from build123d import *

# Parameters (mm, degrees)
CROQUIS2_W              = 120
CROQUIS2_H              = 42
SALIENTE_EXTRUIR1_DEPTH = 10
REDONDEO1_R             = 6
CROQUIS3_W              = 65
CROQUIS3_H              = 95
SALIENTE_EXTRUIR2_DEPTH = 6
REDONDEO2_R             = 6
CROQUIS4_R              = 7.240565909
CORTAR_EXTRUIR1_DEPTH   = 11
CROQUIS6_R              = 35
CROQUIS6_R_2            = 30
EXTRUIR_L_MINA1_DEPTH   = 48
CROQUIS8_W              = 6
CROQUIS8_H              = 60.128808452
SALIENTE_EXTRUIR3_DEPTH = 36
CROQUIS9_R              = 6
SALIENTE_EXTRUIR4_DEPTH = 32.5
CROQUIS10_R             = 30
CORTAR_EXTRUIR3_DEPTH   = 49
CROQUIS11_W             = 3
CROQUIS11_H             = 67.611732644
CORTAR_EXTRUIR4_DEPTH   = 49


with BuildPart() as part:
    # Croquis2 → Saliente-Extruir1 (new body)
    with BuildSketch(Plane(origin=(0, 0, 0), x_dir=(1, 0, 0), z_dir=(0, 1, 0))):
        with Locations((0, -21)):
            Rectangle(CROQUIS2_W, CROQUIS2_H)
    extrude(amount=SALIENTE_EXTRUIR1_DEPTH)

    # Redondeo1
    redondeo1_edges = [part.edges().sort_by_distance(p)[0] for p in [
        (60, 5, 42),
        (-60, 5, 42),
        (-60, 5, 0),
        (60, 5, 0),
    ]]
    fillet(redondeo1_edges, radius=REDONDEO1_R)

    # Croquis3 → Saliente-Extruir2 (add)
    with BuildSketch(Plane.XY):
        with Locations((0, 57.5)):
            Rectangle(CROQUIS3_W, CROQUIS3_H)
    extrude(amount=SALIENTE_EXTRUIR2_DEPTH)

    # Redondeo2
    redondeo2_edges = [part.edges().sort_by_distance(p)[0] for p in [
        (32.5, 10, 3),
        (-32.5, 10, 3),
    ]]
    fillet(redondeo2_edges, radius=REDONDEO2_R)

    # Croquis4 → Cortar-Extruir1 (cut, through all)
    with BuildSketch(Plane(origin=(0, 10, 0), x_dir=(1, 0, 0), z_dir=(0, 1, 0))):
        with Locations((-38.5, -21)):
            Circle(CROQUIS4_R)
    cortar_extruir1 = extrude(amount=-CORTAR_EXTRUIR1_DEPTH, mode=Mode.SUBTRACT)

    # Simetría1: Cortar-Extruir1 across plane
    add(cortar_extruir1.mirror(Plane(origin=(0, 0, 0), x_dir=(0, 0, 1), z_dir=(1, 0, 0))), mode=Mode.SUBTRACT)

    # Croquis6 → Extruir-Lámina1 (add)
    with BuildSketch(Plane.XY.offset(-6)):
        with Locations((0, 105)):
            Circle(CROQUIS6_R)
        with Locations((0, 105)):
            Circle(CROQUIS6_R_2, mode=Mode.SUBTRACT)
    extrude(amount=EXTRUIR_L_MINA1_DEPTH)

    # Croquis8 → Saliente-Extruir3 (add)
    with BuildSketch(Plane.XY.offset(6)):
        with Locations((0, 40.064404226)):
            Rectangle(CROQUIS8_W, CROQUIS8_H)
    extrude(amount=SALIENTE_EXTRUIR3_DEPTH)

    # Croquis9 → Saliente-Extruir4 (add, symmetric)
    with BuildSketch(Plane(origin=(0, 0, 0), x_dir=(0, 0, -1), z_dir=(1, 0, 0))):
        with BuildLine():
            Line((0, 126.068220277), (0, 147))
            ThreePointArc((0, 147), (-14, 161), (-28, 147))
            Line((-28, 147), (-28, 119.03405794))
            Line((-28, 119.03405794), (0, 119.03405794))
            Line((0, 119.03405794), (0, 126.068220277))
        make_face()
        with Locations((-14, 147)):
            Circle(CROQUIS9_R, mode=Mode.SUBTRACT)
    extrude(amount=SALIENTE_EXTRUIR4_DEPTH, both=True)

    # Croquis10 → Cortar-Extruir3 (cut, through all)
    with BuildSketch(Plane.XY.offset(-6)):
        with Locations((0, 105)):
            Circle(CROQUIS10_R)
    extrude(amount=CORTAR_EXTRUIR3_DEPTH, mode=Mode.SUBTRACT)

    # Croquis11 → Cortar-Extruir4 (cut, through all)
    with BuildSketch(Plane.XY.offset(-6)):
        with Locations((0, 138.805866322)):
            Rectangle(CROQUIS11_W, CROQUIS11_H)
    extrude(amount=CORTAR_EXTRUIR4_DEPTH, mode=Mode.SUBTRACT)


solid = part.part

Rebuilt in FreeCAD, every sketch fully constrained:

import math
import FreeCAD as App
import Part
import Sketcher
from FreeCAD import Vector


def edges_at(feature, points):
    """Names of the edges that pass closest to the given points."""
    edges = feature.Shape.Edges
    near = lambda p: min(range(len(edges)), key=lambda i: edges[i].distToShape(Part.Vertex(*p))[0])
    return sorted({f"Edge{near(p) + 1}" for p in points})


def add_polygon(sketch, points):
    """Adds a closed chain of lines whose ends are joined by coincident constraints."""
    first, n = sketch.GeometryCount, len(points)
    for a, b in zip(points, points[1:] + points[:1]):
        sketch.addGeometry(Part.LineSegment(App.Vector(*a, 0), App.Vector(*b, 0)), False)
    for i in range(n):
        sketch.addConstraint(Sketcher.Constraint("Coincident", first + i, 2, first + (i + 1) % n, 1))

doc = App.newDocument("Part")
params = doc.addObject("Spreadsheet::Sheet", "Params")
for row, (alias, value) in enumerate([
    ("sketch1_width", "120 mm"),
    ("sketch1_height", "42 mm"),
    ("pad1_length", "10 mm"),
    ("fillet_radius", "6 mm"),
    ("sketch2_width", "65 mm"),
    ("sketch2_height", "95 mm"),
    ("pad2_length", "6 mm"),
    ("fillet2_radius", "6 mm"),
    ("sketch4_diameter", "70 mm"),
    ("sketch4_diameter2", "60 mm"),
    ("pad3_length", "48 mm"),
    ("sketch5_width", "6 mm"),
    ("pad4_length", "36 mm"),
    ("sketch6_diameter", "12 mm"),
    ("sketch6_radius", "14 mm"),
    ("pad5_length", "65 mm"),
    ("sketch7_diameter", "60 mm"),
    ("sketch8_width", "3 mm"),
], start=1):
    params.set(f"A{row}", alias)
    params.set(f"B{row}", "=" + value)
    params.setAlias(f"B{row}", alias)

body = doc.addObject("PartDesign::Body", "Body")

# Sketch on XZ plane
sketch1 = body.newObject("Sketcher::SketchObject", "Sketch")
sketch1.AttachmentSupport = (doc.getObject("XZ_Plane"), [""])
sketch1.MapMode = "FlatFace"
add_polygon(sketch1, [(-60, 0), (-60, 42), (60, 42), (60, 0)])  # lines 0-3
sketch1.addConstraint([
    Sketcher.Constraint("Vertical", 0),
    Sketcher.Constraint("Horizontal", 1),
    Sketcher.Constraint("Vertical", 2),
    Sketcher.Constraint("Horizontal", 3),
    Sketcher.Constraint("Symmetric", 2, 2, 3, 2, -1, 1),
    Sketcher.Constraint("DistanceX", 1, 1, 1, 2, 120.0),
    Sketcher.Constraint("DistanceY", 0, 1, 0, 2, 42.0),
])
sketch1.setExpression("Constraints[9]", "Params.sketch1_width")
sketch1.setExpression("Constraints[10]", "Params.sketch1_height")
pad1 = body.newObject("PartDesign::Pad", "Pad")
pad1.Profile = sketch1
pad1.setExpression("Length", "Params.pad1_length")
pad1.Reversed = True
doc.recompute()

fillet = body.newObject("PartDesign::Fillet", "Fillet")
fillet.Base = (pad1, edges_at(pad1, [
    (60, 5, 42),
    (-60, 5, 42),
    (-60, 5, 0),
    (60, 5, 0),
]))
fillet.setExpression("Radius", "Params.fillet_radius")

# Sketch on XY plane
sketch2 = body.newObject("Sketcher::SketchObject", "Sketch001")
sketch2.AttachmentSupport = (doc.getObject("XY_Plane"), [""])
sketch2.MapMode = "FlatFace"
add_polygon(sketch2, [(-32.5, 105), (-32.5, 10), (32.5, 10), (32.5, 105)])  # lines 0-3
sketch2.addConstraint([
    Sketcher.Constraint("Vertical", 0),
    Sketcher.Constraint("Horizontal", 1),
    Sketcher.Constraint("Vertical", 2),
    Sketcher.Constraint("Horizontal", 3),
    Sketcher.Constraint("DistanceX", 1, 1, 1, 2, 65.0),
    Sketcher.Constraint("DistanceY", 0, 2, 0, 1, 95.0),
    Sketcher.Constraint("DistanceY", -1, 1, 0, 2, 10.0),
    Sketcher.Constraint("DistanceX", 0, 2, -1, 1, 32.5),
])
sketch2.setExpression("Constraints[8]", "Params.sketch2_width")
sketch2.setExpression("Constraints[9]", "Params.sketch2_height")
pad2 = body.newObject("PartDesign::Pad", "Pad001")
pad2.Profile = sketch2
pad2.setExpression("Length", "Params.pad2_length")
doc.recompute()

fillet2 = body.newObject("PartDesign::Fillet", "Fillet001")
fillet2.Base = (pad2, edges_at(pad2, [(32.5, 10, 3), (-32.5, 10, 3)]))
fillet2.setExpression("Radius", "Params.fillet2_radius")

# Sketch on XZ plane
sketch3 = body.newObject("Sketcher::SketchObject", "Sketch002")
sketch3.AttachmentSupport = (doc.getObject("XZ_Plane"), [""])
sketch3.MapMode = "FlatFace"
sketch3.AttachmentOffset = App.Placement(Vector(0, 0, -10), App.Rotation())
sketch3.addGeometry(Part.Circle(Vector(-38.5, 21, 0), Vector(0, 0, 1), 7.240566), False)
sketch3.addConstraint([
    Sketcher.Constraint("DistanceY", -1, 1, 0, 3, 21.0),
    Sketcher.Constraint("DistanceX", 0, 3, -1, 1, 38.5),
    Sketcher.Constraint("Diameter", 0, 14.481132),
])
pocket1 = body.newObject("PartDesign::Pocket", "Pocket")
pocket1.Profile = sketch3
pocket1.Type = "ThroughAll"
pocket1.Reversed = True
doc.recompute()

mirrored = body.newObject("PartDesign::Mirrored", "Mirrored")
mirrored.Originals = [pocket1]
mirrored.MirrorPlane = (doc.getObject("YZ_Plane"), [""])
body.Tip = mirrored

# Sketch on XY plane
sketch4 = body.newObject("Sketcher::SketchObject", "Sketch003")
sketch4.AttachmentSupport = (doc.getObject("XY_Plane"), [""])
sketch4.MapMode = "FlatFace"
sketch4.AttachmentOffset = App.Placement(Vector(0, 0, -6), App.Rotation())
sketch4.addGeometry([
    Part.Circle(Vector(0, 105, 0), Vector(0, 0, 1), 35),
    Part.Circle(Vector(0, 105, 0), Vector(0, 0, 1), 30),
], False)
sketch4.addConstraint([
    Sketcher.Constraint("Coincident", 1, 3, 0, 3),
    Sketcher.Constraint("PointOnObject", 0, 3, -2),
    Sketcher.Constraint("Diameter", 0, 70.0),
    Sketcher.Constraint("Diameter", 1, 60.0),
    Sketcher.Constraint("DistanceY", -1, 1, 0, 3, 105.0),
])
sketch4.setExpression("Constraints[2]", "Params.sketch4_diameter")
sketch4.setExpression("Constraints[3]", "Params.sketch4_diameter2")
pad3 = body.newObject("PartDesign::Pad", "Pad002")
pad3.Profile = sketch4
pad3.setExpression("Length", "Params.pad3_length")

# Sketch on XY plane
sketch5 = body.newObject("Sketcher::SketchObject", "Sketch004")
sketch5.AttachmentSupport = (doc.getObject("XY_Plane"), [""])
sketch5.MapMode = "FlatFace"
sketch5.AttachmentOffset = App.Placement(Vector(0, 0, 6), App.Rotation())
add_polygon(sketch5, [(-3, 70.128808), (-3, 10), (3, 10), (3, 70.128808)])  # lines 0-3
sketch5.addConstraint([
    Sketcher.Constraint("Vertical", 0),
    Sketcher.Constraint("Horizontal", 1),
    Sketcher.Constraint("Vertical", 2),
    Sketcher.Constraint("Horizontal", 3),
    Sketcher.Constraint("DistanceX", 1, 1, 1, 2, 6.0),
    Sketcher.Constraint("DistanceX", 0, 2, -1, 1, 3.0),
    Sketcher.Constraint("DistanceY", -1, 1, 0, 2, 10.0),
    Sketcher.Constraint("DistanceY", 0, 2, 0, 1, 60.128808),
])
sketch5.setExpression("Constraints[8]", "Params.sketch5_width")
pad4 = body.newObject("PartDesign::Pad", "Pad003")
pad4.Profile = sketch5
pad4.setExpression("Length", "Params.pad4_length")

# Sketch on YZ plane
sketch6 = body.newObject("Sketcher::SketchObject", "Sketch005")
sketch6.AttachmentSupport = (doc.getObject("YZ_Plane"), [""])
sketch6.MapMode = "FlatFace"
sketch6.addGeometry([
    Part.ArcOfCircle(Part.Circle(Vector(147, 14, 0), Vector(0, 0, 1), 14), math.radians(-90), math.radians(90)),  # 0
    Part.LineSegment(Vector(147, 28, 0), Vector(119.034058, 28, 0)),  # 1
    Part.LineSegment(Vector(119.034058, 28, 0), Vector(119.034058, 0, 0)),  # 2
    Part.LineSegment(Vector(119.034058, 0, 0), Vector(147, 0, 0)),  # 3
    Part.Circle(Vector(147, 14, 0), Vector(0, 0, 1), 6),  # 4
], False)
sketch6.addConstraint([
    Sketcher.Constraint("Tangent", 0, 2, 1, 1),
    Sketcher.Constraint("Coincident", 1, 2, 2, 1),
    Sketcher.Constraint("Coincident", 2, 2, 3, 1),
    Sketcher.Constraint("Tangent", 3, 2, 0, 1),
    Sketcher.Constraint("Horizontal", 1),
    Sketcher.Constraint("Vertical", 2),
    Sketcher.Constraint("Horizontal", 3),
    Sketcher.Constraint("Coincident", 4, 3, 0, 3),
    Sketcher.Constraint("PointOnObject", 2, 2, -1),
    Sketcher.Constraint("Diameter", 4, 12.0),
    Sketcher.Constraint("Radius", 0, 14.0),
    Sketcher.Constraint("DistanceX", -1, 1, 0, 3, 147.0),
    Sketcher.Constraint("DistanceX", 1, 2, 1, 1, 27.965942),
])
sketch6.setExpression("Constraints[9]", "Params.sketch6_diameter")
sketch6.setExpression("Constraints[10]", "Params.sketch6_radius")
pad5 = body.newObject("PartDesign::Pad", "Pad004")
pad5.Profile = sketch6
pad5.setExpression("Length", "Params.pad5_length")
pad5.Midplane = True

# Sketch on XY plane
sketch7 = body.newObject("Sketcher::SketchObject", "Sketch006")
sketch7.AttachmentSupport = (doc.getObject("XY_Plane"), [""])
sketch7.MapMode = "FlatFace"
sketch7.AttachmentOffset = App.Placement(Vector(0, 0, -6), App.Rotation())
sketch7.addGeometry(Part.Circle(Vector(0, 105, 0), Vector(0, 0, 1), 30), False)
sketch7.addConstraint([
    Sketcher.Constraint("PointOnObject", 0, 3, -2),
    Sketcher.Constraint("Diameter", 0, 60.0),
    Sketcher.Constraint("DistanceY", -1, 1, 0, 3, 105.0),
])
sketch7.setExpression("Constraints[1]", "Params.sketch7_diameter")
pocket2 = body.newObject("PartDesign::Pocket", "Pocket001")
pocket2.Profile = sketch7
pocket2.Type = "ThroughAll"
pocket2.Reversed = True

# Sketch on XY plane
sketch8 = body.newObject("Sketcher::SketchObject", "Sketch007")
sketch8.AttachmentSupport = (doc.getObject("XY_Plane"), [""])
sketch8.MapMode = "FlatFace"
sketch8.AttachmentOffset = App.Placement(Vector(0, 0, -6), App.Rotation())
add_polygon(sketch8, [(-1.5, 172.611733), (-1.5, 105), (1.5, 105), (1.5, 172.611733)])  # lines 0-3
sketch8.addConstraint([
    Sketcher.Constraint("Vertical", 0),
    Sketcher.Constraint("Horizontal", 1),
    Sketcher.Constraint("Vertical", 2),
    Sketcher.Constraint("Horizontal", 3),
    Sketcher.Constraint("DistanceX", 1, 1, 1, 2, 3.0),
    Sketcher.Constraint("DistanceY", -1, 1, 0, 2, 105.0),
    Sketcher.Constraint("DistanceX", 0, 2, -1, 1, 1.5),
    Sketcher.Constraint("DistanceY", 0, 2, 0, 1, 67.611733),
])
sketch8.setExpression("Constraints[8]", "Params.sketch8_width")
pocket3 = body.newObject("PartDesign::Pocket", "Pocket002")
pocket3.Profile = sketch8
pocket3.Type = "ThroughAll"
pocket3.Reversed = True

doc.recompute()
